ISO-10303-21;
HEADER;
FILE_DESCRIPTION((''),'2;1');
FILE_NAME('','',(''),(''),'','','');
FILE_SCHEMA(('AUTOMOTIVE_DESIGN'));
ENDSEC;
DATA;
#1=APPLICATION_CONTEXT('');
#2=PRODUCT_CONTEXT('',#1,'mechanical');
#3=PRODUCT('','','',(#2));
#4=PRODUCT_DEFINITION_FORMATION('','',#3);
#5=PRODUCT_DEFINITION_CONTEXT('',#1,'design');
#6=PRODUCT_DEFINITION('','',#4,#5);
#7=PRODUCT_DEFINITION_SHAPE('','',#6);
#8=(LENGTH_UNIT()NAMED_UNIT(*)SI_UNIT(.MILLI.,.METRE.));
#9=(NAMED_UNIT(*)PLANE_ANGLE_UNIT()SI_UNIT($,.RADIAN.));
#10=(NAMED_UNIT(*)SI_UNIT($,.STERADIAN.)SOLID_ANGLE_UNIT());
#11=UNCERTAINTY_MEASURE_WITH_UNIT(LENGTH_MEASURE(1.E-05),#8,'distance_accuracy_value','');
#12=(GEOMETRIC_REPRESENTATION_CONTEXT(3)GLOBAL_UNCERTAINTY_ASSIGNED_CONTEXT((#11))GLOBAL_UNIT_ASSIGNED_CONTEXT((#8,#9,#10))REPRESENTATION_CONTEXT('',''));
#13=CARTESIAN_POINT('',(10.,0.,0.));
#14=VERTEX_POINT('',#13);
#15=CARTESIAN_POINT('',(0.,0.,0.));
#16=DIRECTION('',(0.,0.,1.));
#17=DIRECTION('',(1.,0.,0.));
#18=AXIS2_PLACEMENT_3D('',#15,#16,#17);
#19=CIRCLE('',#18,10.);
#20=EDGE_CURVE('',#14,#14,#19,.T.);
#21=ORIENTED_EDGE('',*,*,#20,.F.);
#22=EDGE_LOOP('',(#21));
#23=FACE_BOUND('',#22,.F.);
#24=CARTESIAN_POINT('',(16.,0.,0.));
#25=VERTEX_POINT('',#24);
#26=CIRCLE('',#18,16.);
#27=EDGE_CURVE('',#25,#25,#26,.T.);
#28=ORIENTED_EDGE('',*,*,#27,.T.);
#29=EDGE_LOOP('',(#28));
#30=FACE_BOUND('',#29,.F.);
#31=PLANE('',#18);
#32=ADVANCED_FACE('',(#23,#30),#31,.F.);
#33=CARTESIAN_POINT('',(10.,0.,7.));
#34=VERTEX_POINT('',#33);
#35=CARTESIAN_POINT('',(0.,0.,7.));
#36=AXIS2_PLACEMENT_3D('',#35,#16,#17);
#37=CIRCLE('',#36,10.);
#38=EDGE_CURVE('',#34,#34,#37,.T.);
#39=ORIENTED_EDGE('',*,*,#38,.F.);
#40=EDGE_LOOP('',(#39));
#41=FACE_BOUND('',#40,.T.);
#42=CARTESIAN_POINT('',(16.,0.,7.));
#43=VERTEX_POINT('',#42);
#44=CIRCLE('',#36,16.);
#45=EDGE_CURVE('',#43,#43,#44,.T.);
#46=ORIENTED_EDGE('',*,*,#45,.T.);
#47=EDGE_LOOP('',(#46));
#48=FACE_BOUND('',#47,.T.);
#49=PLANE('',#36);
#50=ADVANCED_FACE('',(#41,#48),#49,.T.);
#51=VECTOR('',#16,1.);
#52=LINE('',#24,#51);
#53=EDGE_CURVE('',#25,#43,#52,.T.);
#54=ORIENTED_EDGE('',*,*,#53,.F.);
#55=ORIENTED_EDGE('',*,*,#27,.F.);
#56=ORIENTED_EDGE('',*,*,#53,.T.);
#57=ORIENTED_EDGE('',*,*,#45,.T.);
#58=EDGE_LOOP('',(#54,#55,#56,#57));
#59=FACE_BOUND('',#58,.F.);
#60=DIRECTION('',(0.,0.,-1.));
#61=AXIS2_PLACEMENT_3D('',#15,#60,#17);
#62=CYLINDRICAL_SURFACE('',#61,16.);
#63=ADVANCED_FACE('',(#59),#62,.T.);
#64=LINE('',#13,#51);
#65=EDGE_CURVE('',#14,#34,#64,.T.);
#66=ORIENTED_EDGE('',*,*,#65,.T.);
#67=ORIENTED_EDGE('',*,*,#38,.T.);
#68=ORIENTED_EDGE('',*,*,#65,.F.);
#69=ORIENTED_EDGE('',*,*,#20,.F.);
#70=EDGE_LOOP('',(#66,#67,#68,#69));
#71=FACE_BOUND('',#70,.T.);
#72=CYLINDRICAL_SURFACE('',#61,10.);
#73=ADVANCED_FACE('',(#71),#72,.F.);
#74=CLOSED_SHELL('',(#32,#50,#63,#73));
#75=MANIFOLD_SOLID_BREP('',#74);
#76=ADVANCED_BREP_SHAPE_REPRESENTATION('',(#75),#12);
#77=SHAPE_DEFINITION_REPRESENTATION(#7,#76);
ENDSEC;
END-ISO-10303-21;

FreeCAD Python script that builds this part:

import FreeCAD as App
import Part
import Sketcher
from FreeCAD import Vector

doc = App.newDocument("Part")
body = doc.addObject("PartDesign::Body", "Body")

sketch1 = doc.addObject("Sketcher::SketchObject", "Sketch")
body.addObject(sketch1)
sketch1.AttachmentSupport = (doc.XY_Plane, [""])
sketch1.MapMode = "FlatFace"
sketch1.addGeometry([
    Part.Circle(Vector(0, 0, 0), Vector(0, 0, 1), 16),
    Part.Circle(Vector(0, 0, 0), Vector(0, 0, 1), 10),
], False)
sketch1.addConstraint([
    Sketcher.Constraint("Coincident", 0, 3, -1, 1),
    Sketcher.Constraint("Coincident", 1, 3, -1, 1),
    Sketcher.Constraint("Diameter", 0, 32.0),
    Sketcher.Constraint("Diameter", 1, 20.0),
])
pad1 = doc.addObject("PartDesign::Pad", "Pad")
body.addObject(pad1)
pad1.Profile = sketch1
pad1.Length = 7

doc.recompute()
